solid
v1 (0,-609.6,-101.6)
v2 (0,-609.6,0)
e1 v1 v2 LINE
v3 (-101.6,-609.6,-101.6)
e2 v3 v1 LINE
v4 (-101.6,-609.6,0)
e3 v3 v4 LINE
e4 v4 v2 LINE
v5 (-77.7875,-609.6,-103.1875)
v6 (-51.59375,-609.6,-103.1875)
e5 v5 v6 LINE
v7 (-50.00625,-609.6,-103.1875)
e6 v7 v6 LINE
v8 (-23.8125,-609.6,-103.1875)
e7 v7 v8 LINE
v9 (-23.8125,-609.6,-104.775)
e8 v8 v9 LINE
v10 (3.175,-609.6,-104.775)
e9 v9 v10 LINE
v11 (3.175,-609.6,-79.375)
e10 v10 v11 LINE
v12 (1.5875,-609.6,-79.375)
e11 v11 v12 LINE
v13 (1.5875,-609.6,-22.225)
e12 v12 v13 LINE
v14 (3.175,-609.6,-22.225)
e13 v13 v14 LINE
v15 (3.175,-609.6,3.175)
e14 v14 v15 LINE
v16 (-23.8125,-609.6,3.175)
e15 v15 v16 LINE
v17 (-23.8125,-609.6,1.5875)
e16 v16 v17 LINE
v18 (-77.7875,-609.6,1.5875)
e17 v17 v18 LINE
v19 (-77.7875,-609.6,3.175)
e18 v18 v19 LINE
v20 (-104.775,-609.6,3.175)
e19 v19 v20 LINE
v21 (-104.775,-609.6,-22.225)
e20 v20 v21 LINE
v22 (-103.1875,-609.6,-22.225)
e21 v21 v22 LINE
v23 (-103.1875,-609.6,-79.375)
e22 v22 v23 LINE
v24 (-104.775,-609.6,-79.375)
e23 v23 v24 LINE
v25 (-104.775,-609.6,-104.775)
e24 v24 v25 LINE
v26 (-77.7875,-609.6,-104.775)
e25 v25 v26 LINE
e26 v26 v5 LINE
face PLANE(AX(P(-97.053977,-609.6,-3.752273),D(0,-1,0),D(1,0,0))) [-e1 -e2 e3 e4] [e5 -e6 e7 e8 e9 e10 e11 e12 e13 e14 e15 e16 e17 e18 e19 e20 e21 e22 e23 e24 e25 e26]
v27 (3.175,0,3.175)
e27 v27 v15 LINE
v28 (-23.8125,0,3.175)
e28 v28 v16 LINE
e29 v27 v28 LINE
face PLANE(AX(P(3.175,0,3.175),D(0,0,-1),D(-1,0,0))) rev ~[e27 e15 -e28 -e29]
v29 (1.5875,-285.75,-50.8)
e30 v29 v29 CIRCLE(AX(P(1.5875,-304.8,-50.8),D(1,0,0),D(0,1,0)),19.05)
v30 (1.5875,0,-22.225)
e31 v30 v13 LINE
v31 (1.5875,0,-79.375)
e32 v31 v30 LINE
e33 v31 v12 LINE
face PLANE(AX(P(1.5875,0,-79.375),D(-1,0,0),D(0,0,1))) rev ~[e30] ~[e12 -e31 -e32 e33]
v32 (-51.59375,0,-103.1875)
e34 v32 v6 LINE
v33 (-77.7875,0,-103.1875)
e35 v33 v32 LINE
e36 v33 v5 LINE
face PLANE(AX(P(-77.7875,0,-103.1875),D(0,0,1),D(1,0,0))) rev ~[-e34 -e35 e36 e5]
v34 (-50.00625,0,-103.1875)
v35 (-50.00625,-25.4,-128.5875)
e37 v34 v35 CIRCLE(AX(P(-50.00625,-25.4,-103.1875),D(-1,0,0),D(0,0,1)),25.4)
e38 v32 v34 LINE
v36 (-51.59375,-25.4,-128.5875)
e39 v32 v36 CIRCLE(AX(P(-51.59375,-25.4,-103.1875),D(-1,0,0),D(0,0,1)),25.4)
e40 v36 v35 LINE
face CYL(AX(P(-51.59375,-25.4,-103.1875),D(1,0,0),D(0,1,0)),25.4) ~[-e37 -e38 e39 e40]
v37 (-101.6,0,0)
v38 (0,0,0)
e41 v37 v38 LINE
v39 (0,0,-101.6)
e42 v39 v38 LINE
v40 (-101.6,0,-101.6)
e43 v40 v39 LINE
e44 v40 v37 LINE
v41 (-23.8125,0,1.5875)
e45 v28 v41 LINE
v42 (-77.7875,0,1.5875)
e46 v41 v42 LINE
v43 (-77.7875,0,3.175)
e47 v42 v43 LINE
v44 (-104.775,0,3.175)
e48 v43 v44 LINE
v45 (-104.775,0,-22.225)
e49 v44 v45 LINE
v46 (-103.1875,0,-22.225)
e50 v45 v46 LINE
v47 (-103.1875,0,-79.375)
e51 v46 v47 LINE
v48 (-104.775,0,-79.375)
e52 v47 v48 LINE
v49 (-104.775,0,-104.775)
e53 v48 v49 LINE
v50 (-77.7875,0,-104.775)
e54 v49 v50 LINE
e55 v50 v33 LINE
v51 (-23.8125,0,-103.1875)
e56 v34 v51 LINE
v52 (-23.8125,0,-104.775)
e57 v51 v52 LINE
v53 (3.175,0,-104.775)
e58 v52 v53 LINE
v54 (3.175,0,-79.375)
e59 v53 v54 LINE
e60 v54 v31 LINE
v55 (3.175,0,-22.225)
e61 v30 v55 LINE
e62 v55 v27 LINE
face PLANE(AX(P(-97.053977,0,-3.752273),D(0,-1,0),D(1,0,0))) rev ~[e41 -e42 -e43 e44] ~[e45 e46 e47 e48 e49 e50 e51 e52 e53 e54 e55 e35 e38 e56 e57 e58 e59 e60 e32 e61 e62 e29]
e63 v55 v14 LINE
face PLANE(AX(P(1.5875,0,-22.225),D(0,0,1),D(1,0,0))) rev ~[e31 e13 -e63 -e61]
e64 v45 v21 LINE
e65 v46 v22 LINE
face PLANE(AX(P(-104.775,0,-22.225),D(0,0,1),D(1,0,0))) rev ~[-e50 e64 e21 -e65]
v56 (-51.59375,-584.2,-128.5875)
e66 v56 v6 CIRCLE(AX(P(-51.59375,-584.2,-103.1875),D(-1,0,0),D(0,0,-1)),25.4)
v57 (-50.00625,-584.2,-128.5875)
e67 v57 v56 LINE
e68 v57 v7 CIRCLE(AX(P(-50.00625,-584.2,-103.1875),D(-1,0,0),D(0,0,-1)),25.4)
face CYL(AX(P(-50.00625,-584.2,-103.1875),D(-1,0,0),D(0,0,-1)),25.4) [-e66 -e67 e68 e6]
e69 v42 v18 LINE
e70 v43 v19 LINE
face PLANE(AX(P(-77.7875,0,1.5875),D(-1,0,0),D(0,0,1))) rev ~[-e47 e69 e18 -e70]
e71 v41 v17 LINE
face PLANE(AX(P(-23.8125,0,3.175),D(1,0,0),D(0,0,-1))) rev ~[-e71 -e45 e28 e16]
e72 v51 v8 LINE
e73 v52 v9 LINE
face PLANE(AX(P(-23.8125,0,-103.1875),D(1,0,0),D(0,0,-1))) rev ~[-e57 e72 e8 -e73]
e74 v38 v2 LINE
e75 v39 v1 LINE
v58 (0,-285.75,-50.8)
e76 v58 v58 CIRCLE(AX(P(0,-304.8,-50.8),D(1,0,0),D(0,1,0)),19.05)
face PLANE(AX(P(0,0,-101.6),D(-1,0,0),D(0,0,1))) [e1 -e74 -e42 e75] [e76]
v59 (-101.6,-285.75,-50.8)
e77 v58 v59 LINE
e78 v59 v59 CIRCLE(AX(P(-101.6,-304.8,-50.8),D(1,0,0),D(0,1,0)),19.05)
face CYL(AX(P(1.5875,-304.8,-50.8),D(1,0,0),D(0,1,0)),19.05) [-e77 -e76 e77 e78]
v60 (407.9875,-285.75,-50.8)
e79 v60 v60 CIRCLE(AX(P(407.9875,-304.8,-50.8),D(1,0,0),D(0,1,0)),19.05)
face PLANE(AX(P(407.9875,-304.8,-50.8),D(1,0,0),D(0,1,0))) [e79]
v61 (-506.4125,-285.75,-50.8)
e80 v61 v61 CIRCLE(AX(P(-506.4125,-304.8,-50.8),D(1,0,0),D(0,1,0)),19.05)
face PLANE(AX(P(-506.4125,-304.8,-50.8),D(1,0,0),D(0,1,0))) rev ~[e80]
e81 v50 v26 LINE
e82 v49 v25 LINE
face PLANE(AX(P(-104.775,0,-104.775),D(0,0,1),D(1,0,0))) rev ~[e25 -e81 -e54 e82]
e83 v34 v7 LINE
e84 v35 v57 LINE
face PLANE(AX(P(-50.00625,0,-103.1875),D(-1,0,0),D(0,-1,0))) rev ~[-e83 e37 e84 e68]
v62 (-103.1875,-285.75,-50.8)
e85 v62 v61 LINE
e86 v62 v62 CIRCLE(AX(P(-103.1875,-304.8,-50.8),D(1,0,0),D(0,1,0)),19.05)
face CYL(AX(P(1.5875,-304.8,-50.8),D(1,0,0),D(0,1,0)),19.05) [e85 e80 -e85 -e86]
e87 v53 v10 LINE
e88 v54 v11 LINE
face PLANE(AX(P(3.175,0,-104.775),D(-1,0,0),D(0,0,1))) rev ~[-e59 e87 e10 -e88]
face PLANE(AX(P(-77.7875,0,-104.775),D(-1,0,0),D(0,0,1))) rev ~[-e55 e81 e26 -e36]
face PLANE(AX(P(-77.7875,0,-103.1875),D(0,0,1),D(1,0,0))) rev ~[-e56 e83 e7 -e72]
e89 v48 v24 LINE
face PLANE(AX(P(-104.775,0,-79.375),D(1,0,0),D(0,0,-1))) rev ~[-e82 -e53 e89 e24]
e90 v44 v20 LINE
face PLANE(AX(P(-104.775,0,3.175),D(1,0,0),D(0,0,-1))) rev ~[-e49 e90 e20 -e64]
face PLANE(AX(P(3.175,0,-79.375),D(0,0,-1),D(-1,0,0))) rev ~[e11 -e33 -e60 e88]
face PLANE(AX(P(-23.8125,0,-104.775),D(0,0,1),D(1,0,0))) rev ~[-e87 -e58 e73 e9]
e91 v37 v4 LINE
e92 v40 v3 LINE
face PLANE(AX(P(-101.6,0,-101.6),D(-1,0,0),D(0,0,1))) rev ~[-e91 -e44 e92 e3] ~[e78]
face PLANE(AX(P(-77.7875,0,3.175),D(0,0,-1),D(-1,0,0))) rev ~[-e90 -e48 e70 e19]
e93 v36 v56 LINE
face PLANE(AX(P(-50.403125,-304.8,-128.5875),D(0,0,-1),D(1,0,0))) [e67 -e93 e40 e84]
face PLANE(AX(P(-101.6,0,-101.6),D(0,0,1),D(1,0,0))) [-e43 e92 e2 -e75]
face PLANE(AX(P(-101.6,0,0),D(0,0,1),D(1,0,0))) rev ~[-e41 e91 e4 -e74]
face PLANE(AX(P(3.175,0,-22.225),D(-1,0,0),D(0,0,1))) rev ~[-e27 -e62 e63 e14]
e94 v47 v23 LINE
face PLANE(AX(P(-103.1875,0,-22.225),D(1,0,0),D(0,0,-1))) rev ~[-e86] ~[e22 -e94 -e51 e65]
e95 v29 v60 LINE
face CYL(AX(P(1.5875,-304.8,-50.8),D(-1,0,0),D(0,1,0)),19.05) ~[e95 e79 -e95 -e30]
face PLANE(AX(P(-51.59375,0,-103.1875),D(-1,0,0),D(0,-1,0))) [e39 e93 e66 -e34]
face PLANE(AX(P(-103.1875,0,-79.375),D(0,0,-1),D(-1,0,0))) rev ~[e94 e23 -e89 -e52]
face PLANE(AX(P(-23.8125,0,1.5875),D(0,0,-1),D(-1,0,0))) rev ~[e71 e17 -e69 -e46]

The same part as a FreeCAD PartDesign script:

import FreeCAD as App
import Part
import Sketcher

V = App.Vector
Q = App.Units.Quantity


def edges_at(feature, points):
    """Names of the edges that pass closest to the given points."""
    edges = feature.Shape.Edges
    near = lambda p: min(range(len(edges)), key=lambda i: edges[i].distToShape(Part.Vertex(*p))[0])
    return sorted({f"Edge{near(p) + 1}" for p in points})

doc = App.newDocument("Part")
body = doc.addObject("PartDesign::Body", "Body")

# Sketch on XZ plane
sketch1 = body.newObject("Sketcher::SketchObject", "Sketch")
sketch1.AttachmentSupport = (doc.getObject("XZ_Plane"), [""])
sketch1.MapMode = "FlatFace"
sketch1.addGeometry([
    Part.LineSegment(V(-77.8, 1.6, 0), V(-77.8, 3.2, 0)),  # 0
    Part.LineSegment(V(-77.8, 3.2, 0), V(-104.8, 3.2, 0)),  # 1
    Part.LineSegment(V(-104.8, 3.2, 0), V(-104.8, -22.2, 0)),  # 2
    Part.LineSegment(V(-104.8, -22.2, 0), V(-103.2, -22.2, 0)),  # 3
    Part.LineSegment(V(-103.2, -22.2, 0), V(-103.2, -79.4, 0)),  # 4
    Part.LineSegment(V(-103.2, -79.4, 0), V(-104.8, -79.4, 0)),  # 5
    Part.LineSegment(V(-104.8, -79.4, 0), V(-104.8, -104.8, 0)),  # 6
    Part.LineSegment(V(-104.8, -104.8, 0), V(-77.8, -104.8, 0)),  # 7
    Part.LineSegment(V(-77.8, -104.8, 0), V(-77.8, -103.2, 0)),  # 8
    Part.LineSegment(V(-77.8, -103.2, 0), V(-23.8, -103.2, 0)),  # 9
    Part.LineSegment(V(-23.8, -103.2, 0), V(-23.8, -104.8, 0)),  # 10
    Part.LineSegment(V(-23.8, -104.8, 0), V(3.2, -104.8, 0)),  # 11
    Part.LineSegment(V(3.2, -104.8, 0), V(3.2, -79.4, 0)),  # 12
    Part.LineSegment(V(3.2, -79.4, 0), V(1.6, -79.4, 0)),  # 13
    Part.LineSegment(V(1.6, -79.4, 0), V(1.6, -22.2, 0)),  # 14
    Part.LineSegment(V(1.6, -22.2, 0), V(3.2, -22.2, 0)),  # 15
    Part.LineSegment(V(3.2, -22.2, 0), V(3.2, 3.2, 0)),  # 16
    Part.LineSegment(V(3.2, 3.2, 0), V(-23.8, 3.2, 0)),  # 17
    Part.LineSegment(V(-23.8, 3.2, 0), V(-23.8, 1.6, 0)),  # 18
    Part.LineSegment(V(-23.8, 1.6, 0), V(-77.8, 1.6, 0)),  # 19
    Part.LineSegment(V(0, -101.6, 0), V(-101.6, -101.6, 0)),  # 20
    Part.LineSegment(V(-101.6, -101.6, 0), V(-101.6, 0, 0)),  # 21
    Part.LineSegment(V(-101.6, 0, 0), V(0, 0, 0)),  # 22
    Part.LineSegment(V(0, 0, 0), V(0, -101.6, 0)),  # 23
], False)
sketch1.addConstraint([
    Sketcher.Constraint("Coincident", 0, 2, 1, 1),
    Sketcher.Constraint("Coincident", 1, 2, 2, 1),
    Sketcher.Constraint("Coincident", 2, 2, 3, 1),
    Sketcher.Constraint("Coincident", 3, 2, 4, 1),
    Sketcher.Constraint("Coincident", 4, 2, 5, 1),
    Sketcher.Constraint("Coincident", 5, 2, 6, 1),
    Sketcher.Constraint("Coincident", 6, 2, 7, 1),
    Sketcher.Constraint("Coincident", 7, 2, 8, 1),
    Sketcher.Constraint("Coincident", 8, 2, 9, 1),
    Sketcher.Constraint("Coincident", 9, 2, 10, 1),
    Sketcher.Constraint("Coincident", 10, 2, 11, 1),
    Sketcher.Constraint("Coincident", 11, 2, 12, 1),
    Sketcher.Constraint("Coincident", 12, 2, 13, 1),
    Sketcher.Constraint("Coincident", 13, 2, 14, 1),
    Sketcher.Constraint("Coincident", 14, 2, 15, 1),
    Sketcher.Constraint("Coincident", 15, 2, 16, 1),
    Sketcher.Constraint("Coincident", 16, 2, 17, 1),
    Sketcher.Constraint("Coincident", 17, 2, 18, 1),
    Sketcher.Constraint("Coincident", 18, 2, 19, 1),
    Sketcher.Constraint("Coincident", 19, 2, 0, 1),
    Sketcher.Constraint("Coincident", 20, 2, 21, 1),
    Sketcher.Constraint("Coincident", 21, 2, 22, 1),
    Sketcher.Constraint("Coincident", 22, 2, 23, 1),
    Sketcher.Constraint("Coincident", 23, 2, 20, 1),
    Sketcher.Constraint("Vertical", 0),
    Sketcher.Constraint("Horizontal", 1),
    Sketcher.Constraint("Vertical", 2),
    Sketcher.Constraint("Horizontal", 3),
    Sketcher.Constraint("Vertical", 4),
    Sketcher.Constraint("Horizontal", 5),
    Sketcher.Constraint("Vertical", 6),
    Sketcher.Constraint("Horizontal", 7),
    Sketcher.Constraint("Vertical", 8),
    Sketcher.Constraint("Horizontal", 9),
    Sketcher.Constraint("Vertical", 10),
    Sketcher.Constraint("Horizontal", 11),
    Sketcher.Constraint("Vertical", 12),
    Sketcher.Constraint("Horizontal", 13),
    Sketcher.Constraint("Vertical", 14),
    Sketcher.Constraint("Horizontal", 15),
    Sketcher.Constraint("Vertical", 16),
    Sketcher.Constraint("Horizontal", 17),
    Sketcher.Constraint("Vertical", 18),
    Sketcher.Constraint("Horizontal", 19),
    Sketcher.Constraint("Horizontal", 20),
    Sketcher.Constraint("Vertical", 21),
    Sketcher.Constraint("Horizontal", 22),
    Sketcher.Constraint("Vertical", 23),
    Sketcher.Constraint("Coincident", 22, 2, -1, 1),
    Sketcher.Constraint("Horizontal", 7, 2, 10, 2),
    Sketcher.Constraint("Horizontal", 5, 2, 12, 2),
    Sketcher.Constraint("Horizontal", 3, 2, 14, 2),
    Sketcher.Constraint("Horizontal", 1, 2, 16, 2),
    Sketcher.Constraint("Vertical", 2, 2, 5, 2),
    Sketcher.Constraint("Vertical", 0, 2, 7, 2),
    Sketcher.Constraint("Vertical", 12, 2, 15, 2),
    Sketcher.Constraint("Vertical", 10, 2, 17, 2),
    Sketcher.Constraint("Equal", 7, 11),
    Sketcher.Constraint("Equal", 5, 13),
    Sketcher.Constraint("Equal", 15, 0),
    Sketcher.Constraint("Equal", 2, 6),
    Sketcher.Constraint("Equal", 0, 8),
    Sketcher.Constraint("Equal", 22, 21),
    Sketcher.Constraint("DistanceX", 20, 2, 20, 1, Q("4 in")),
    Sketcher.Constraint("DistanceY", 2, 2, 2, 1, Q("1 in")),
    Sketcher.Constraint("DistanceX", 3, 2, 0, 2, Q("1 in")),
    Sketcher.Constraint("DistanceY", 4, 2, 4, 1, Q("2.25 in")),
    Sketcher.Constraint("DistanceX", 1, 2, 1, 1, Q("1.0625 in")),
    Sketcher.Constraint("DistanceX", 9, 1, 9, 2, Q("2.125 in")),
    Sketcher.Constraint("DistanceX", 0, 2, -1, 1, Q("3.0625 in")),
    Sketcher.Constraint("DistanceY", -1, 1, 0, 2, Q("0.125 in")),
])
pad1 = body.newObject("PartDesign::Pad", "Pad")
pad1.Profile = sketch1
pad1.Length = Q("24 in")

# Sketch on YZ plane
sketch2 = body.newObject("Sketcher::SketchObject", "Sketch001")
sketch2.AttachmentSupport = (doc.getObject("YZ_Plane"), [""])
sketch2.MapMode = "FlatFace"
sketch2.AttachmentOffset = App.Placement(V(0, 0, 0.0625 * 25.4), App.Rotation())
sketch2.addGeometry(Part.Circle(V(-305, -51, 0), V(0, 0, 1), 19), False)
sketch2.addConstraint([
    Sketcher.Constraint("Diameter", 0, Q("1.5 in")),
    Sketcher.Constraint("DistanceX", 0, 3, -1, 1, Q("12 in")),
    Sketcher.Constraint("DistanceY", 0, 3, -1, 1, Q("2 in")),
])
pad2 = body.newObject("PartDesign::Pad", "Pad001")
pad2.Profile = sketch2
pad2.Type = "TwoLengths"
pad2.Length = Q("16 in")
pad2.Length2 = Q("20 in")

# Sketch on XY plane
sketch3 = body.newObject("Sketcher::SketchObject", "Sketch002")
sketch3.AttachmentSupport = (doc.getObject("XY_Plane"), [""])
sketch3.MapMode = "FlatFace"
sketch3.AttachmentOffset = App.Placement(V(0, 0, -4.0625 * 25.4), App.Rotation())
sketch3.addGeometry([
    Part.LineSegment(V(-50, 0, 0), V(-50, -609.6, 0)),
    Part.LineSegment(V(-50, -609.6, 0), V(-51.6, -609.6, 0)),
    Part.LineSegment(V(-51.6, -609.6, 0), V(-51.6, 0, 0)),
    Part.LineSegment(V(-51.6, 0, 0), V(-50, 0, 0)),
], False)
sketch3.addConstraint([
    Sketcher.Constraint("Coincident", 0, 2, 1, 1),
    Sketcher.Constraint("Coincident", 1, 2, 2, 1),
    Sketcher.Constraint("Coincident", 2, 2, 3, 1),
    Sketcher.Constraint("Coincident", 3, 2, 0, 1),
    Sketcher.Constraint("Vertical", 0),
    Sketcher.Constraint("Horizontal", 1),
    Sketcher.Constraint("Vertical", 2),
    Sketcher.Constraint("Horizontal", 3),
    Sketcher.Constraint("PointOnObject", 2, 2, -1),
    Sketcher.Constraint("DistanceY", 0, 2, 0, 1, Q("24 in")),
    Sketcher.Constraint("DistanceX", 1, 2, 1, 1, Q("0.0625 in")),
    Sketcher.Constraint("DistanceX", 0, 2, -1, 1, Q("1.96875 in")),
])
pad3 = body.newObject("PartDesign::Pad", "Pad002")
pad3.Profile = sketch3
pad3.Length = Q("1 in")
pad3.Reversed = True
doc.recompute()

fillet = body.newObject("PartDesign::Fillet", "Fillet")
fillet.Base = (pad3, edges_at(pad3, [(-50.8, 0, -128.588)]))
fillet.Radius = Q("1 in")
doc.recompute()

fillet2 = body.newObject("PartDesign::Fillet", "Fillet001")
fillet2.Base = (fillet, edges_at(fillet, [(-50.8, -609.6, -128.588)]))
fillet2.Radius = Q("1 in")

doc.recompute()
